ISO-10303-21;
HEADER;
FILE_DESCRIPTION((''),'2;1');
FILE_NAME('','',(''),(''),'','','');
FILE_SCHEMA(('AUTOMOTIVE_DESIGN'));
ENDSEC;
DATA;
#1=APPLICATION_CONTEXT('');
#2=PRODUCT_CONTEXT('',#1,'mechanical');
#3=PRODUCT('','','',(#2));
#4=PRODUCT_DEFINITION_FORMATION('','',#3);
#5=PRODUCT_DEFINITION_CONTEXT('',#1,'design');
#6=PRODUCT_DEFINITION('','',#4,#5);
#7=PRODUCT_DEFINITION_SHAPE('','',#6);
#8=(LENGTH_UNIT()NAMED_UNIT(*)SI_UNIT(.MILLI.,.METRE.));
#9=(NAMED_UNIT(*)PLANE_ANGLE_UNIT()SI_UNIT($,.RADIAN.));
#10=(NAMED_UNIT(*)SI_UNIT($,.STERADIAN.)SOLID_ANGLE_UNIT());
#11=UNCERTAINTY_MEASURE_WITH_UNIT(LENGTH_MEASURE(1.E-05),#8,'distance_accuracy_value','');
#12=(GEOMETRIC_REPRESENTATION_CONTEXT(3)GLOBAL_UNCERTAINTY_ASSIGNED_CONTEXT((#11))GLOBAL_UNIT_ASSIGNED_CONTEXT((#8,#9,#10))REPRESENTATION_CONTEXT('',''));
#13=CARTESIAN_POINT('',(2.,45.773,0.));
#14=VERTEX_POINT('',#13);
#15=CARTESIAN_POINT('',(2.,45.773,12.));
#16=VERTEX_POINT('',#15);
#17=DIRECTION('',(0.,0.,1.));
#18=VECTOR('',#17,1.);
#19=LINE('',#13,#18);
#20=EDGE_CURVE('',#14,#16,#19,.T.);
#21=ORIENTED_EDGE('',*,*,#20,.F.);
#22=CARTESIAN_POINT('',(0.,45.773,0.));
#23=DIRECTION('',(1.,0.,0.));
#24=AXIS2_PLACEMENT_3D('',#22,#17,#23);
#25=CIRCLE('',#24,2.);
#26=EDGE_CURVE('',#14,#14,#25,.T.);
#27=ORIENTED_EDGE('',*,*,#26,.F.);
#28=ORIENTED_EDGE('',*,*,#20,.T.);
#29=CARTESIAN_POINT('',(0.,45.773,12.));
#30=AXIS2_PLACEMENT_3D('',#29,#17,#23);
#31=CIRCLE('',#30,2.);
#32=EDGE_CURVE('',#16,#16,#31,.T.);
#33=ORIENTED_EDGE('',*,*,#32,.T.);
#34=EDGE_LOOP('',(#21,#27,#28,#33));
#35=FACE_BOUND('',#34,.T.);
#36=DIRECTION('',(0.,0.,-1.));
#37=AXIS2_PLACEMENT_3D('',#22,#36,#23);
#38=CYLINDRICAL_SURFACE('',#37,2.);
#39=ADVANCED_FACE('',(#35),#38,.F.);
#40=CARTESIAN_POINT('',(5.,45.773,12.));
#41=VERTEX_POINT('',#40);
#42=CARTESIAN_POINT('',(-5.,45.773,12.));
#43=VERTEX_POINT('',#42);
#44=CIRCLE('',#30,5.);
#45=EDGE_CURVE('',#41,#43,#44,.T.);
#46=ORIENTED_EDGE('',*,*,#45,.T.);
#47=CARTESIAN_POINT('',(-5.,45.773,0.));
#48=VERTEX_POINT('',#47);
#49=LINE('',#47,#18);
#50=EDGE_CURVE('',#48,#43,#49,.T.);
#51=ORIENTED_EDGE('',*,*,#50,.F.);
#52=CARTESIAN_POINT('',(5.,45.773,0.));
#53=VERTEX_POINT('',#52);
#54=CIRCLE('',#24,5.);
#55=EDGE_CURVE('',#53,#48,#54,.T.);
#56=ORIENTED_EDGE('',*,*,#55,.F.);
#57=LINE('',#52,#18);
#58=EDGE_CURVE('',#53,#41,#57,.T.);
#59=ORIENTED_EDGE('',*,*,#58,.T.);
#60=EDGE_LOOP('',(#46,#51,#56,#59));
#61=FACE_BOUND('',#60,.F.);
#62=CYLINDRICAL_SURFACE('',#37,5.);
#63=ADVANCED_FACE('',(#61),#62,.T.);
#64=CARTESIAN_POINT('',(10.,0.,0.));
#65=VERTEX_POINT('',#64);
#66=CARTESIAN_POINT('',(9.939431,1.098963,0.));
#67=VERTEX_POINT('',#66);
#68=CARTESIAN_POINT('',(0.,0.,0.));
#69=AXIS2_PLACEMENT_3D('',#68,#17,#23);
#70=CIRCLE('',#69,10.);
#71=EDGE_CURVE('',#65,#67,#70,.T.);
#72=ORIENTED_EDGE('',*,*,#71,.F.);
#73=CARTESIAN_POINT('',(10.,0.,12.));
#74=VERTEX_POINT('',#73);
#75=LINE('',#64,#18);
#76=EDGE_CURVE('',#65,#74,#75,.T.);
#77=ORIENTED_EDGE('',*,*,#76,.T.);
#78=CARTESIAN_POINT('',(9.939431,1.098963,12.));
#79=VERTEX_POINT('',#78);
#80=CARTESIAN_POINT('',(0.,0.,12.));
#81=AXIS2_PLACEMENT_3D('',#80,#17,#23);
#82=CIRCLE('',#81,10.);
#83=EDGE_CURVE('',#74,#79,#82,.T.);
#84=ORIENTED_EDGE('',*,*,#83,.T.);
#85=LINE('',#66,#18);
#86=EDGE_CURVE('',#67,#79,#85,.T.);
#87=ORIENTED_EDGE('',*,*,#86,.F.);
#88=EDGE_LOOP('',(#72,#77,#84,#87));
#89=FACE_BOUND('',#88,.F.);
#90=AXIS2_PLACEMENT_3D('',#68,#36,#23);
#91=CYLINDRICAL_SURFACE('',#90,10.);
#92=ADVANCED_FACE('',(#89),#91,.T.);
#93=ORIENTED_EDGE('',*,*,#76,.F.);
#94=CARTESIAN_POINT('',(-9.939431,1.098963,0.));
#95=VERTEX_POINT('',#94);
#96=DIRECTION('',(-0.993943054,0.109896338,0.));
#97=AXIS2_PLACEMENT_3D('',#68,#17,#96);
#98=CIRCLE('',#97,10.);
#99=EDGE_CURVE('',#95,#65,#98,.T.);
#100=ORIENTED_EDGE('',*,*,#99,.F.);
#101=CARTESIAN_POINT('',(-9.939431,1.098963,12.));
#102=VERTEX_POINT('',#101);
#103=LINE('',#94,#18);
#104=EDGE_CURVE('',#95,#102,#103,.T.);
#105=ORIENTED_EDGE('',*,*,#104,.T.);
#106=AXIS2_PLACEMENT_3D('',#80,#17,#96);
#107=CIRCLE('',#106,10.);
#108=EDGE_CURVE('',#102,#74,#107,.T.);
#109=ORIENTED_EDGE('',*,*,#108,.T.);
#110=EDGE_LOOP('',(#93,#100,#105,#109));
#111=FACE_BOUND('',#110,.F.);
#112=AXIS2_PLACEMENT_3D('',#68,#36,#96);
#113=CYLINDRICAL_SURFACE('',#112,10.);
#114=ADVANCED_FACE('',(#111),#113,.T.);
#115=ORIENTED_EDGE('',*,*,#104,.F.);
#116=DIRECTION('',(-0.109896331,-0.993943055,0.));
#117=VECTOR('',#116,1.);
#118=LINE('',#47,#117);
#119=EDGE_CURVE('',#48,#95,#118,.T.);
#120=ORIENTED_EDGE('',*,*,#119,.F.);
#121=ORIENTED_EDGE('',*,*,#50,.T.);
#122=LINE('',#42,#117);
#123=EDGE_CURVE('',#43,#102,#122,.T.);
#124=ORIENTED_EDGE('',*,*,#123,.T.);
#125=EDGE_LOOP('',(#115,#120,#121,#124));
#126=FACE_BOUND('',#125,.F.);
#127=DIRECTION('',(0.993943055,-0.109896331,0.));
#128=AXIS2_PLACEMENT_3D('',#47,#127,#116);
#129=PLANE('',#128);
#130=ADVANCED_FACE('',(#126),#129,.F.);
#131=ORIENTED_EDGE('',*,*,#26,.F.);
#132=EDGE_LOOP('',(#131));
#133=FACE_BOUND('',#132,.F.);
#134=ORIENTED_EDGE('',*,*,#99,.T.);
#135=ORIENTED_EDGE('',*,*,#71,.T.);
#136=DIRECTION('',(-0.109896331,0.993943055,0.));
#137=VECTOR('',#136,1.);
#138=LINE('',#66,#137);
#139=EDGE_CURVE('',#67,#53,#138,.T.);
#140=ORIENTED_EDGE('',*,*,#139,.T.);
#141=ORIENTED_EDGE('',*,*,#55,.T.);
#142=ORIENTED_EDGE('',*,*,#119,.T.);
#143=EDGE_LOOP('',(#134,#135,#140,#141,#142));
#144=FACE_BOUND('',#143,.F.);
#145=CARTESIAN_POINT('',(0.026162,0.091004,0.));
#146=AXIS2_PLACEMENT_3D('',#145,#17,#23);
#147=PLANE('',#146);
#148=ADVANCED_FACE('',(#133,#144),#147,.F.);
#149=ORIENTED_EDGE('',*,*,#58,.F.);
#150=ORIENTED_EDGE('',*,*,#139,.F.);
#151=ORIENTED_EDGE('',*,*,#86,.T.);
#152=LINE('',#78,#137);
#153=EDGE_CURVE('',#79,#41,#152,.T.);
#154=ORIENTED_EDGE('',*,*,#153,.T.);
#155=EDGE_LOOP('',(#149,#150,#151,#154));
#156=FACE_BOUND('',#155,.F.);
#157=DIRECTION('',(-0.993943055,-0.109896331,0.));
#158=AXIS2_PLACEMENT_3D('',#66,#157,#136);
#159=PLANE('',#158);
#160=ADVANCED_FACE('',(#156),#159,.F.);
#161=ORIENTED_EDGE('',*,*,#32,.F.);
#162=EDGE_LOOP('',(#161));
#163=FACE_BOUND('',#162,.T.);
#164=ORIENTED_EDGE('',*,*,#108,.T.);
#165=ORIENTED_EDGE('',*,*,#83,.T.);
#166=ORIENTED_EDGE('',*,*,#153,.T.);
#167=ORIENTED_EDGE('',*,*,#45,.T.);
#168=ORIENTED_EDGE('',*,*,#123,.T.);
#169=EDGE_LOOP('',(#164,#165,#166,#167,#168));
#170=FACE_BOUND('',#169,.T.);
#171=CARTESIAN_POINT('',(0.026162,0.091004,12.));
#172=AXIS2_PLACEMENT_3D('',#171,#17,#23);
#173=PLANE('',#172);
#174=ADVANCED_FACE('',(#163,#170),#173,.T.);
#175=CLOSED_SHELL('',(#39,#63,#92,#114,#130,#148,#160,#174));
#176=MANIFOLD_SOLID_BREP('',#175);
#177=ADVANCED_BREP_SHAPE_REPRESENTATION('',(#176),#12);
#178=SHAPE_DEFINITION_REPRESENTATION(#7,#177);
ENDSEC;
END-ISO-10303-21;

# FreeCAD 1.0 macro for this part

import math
import FreeCAD as App
import Part
import Sketcher

V = App.Vector

doc = App.newDocument("Part")
body = doc.addObject("PartDesign::Body", "Body")

sketch1 = body.newObject("Sketcher::SketchObject", "Sketch")
sketch1.AttachmentSupport = (doc.getObject("XY_Plane"), [""])
sketch1.MapMode = "FlatFace"
sketch1.addGeometry(Part.ArcOfCircle(Part.Circle(V(0, 0, 0), V(0, 0, 1), 10), math.radians(173.69066), math.radians(360)), False)
sketch1.addGeometry(Part.ArcOfCircle(Part.Circle(V(0, 0, 0), V(0, 0, 1), 10), math.radians(0), math.radians(6.309341)), False)
sketch1.addGeometry(Part.LineSegment(V(9.939431, 1.098963, 0), V(5, 45.773, 0)), False)
sketch1.addGeometry(Part.ArcOfCircle(Part.Circle(V(0, 45.773, 0), V(0, 0, 1), 5), math.radians(0), math.radians(180)), False)
sketch1.addGeometry(Part.LineSegment(V(-5, 45.773, 0), V(-9.939431, 1.098963, 0)), False)
sketch1.addGeometry(Part.Circle(V(0, 45.773, 0), V(0, 0, 1), 2), False)
sketch1.addConstraint(Sketcher.Constraint("Tangent", 0, 2, 1, 1))
sketch1.addConstraint(Sketcher.Constraint("Tangent", 1, 2, 2, 1))
sketch1.addConstraint(Sketcher.Constraint("Coincident", 2, 2, 3, 1))
sketch1.addConstraint(Sketcher.Constraint("Coincident", 3, 2, 4, 1))
sketch1.addConstraint(Sketcher.Constraint("Tangent", 4, 2, 0, 1))
sketch1.addConstraint(Sketcher.Constraint("Coincident", 0, 3, -1, 1))
sketch1.addConstraint(Sketcher.Constraint("Coincident", 5, 3, 3, 3))
sketch1.addConstraint(Sketcher.Constraint("Equal", 0, 1))
sketch1.addConstraint(Sketcher.Constraint("Symmetric", 2, 2, 3, 2, -2))
sketch1.addConstraint(Sketcher.Constraint("PointOnObject", 0, 2, -1))
sketch1.addConstraint(Sketcher.Constraint("Horizontal", 5, 3, 2, 2))
sketch1.addConstraint(Sketcher.Constraint("Diameter", 5, 4.0))
sketch1.addConstraint(Sketcher.Constraint("Radius", 0, 10.0))
sketch1.addConstraint(Sketcher.Constraint("Radius", 3, 5.0))
sketch1.addConstraint(Sketcher.Constraint("DistanceY", -1, 1, 3, 3, 45.773))
pad1 = body.newObject("PartDesign::Pad", "Pad")
pad1.Profile = sketch1
pad1.Length = 12

doc.recompute()
